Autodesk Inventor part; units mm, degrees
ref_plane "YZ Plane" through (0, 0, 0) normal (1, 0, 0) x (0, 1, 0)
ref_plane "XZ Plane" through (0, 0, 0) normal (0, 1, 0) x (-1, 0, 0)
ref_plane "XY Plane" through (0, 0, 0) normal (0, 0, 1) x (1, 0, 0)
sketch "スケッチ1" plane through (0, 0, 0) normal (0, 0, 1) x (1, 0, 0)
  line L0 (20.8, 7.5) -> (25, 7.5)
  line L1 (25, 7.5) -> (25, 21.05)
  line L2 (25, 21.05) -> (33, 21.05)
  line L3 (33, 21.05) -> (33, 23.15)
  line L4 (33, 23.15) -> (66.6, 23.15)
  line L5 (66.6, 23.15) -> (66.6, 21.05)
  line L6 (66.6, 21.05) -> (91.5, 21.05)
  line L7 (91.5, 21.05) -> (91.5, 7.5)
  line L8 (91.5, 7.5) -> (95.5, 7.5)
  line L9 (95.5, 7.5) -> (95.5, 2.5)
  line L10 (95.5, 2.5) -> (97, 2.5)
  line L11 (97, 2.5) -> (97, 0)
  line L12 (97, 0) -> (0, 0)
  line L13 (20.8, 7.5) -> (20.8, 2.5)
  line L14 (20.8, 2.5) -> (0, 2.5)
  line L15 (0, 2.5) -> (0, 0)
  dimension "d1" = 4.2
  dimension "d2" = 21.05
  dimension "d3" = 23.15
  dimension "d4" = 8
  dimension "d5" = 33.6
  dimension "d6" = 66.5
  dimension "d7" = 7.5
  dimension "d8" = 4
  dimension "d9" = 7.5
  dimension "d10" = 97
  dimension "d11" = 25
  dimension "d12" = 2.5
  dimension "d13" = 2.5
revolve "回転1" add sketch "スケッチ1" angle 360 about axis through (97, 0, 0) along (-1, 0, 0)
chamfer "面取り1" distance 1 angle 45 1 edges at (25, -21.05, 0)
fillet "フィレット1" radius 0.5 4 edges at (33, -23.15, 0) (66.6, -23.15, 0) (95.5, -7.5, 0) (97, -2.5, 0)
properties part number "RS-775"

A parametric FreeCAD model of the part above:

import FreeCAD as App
import Part
import Sketcher


def edges_at(feature, points):
    """Names of the edges that pass closest to the given points."""
    edges = feature.Shape.Edges
    near = lambda p: min(range(len(edges)), key=lambda i: edges[i].distToShape(Part.Vertex(*p))[0])
    return sorted({f"Edge{near(p) + 1}" for p in points})


def add_polygon(sketch, points):
    """Adds a closed chain of lines whose ends are joined by coincident constraints."""
    first, n = sketch.GeometryCount, len(points)
    for a, b in zip(points, points[1:] + points[:1]):
        sketch.addGeometry(Part.LineSegment(App.Vector(*a, 0), App.Vector(*b, 0)), False)
    for i in range(n):
        sketch.addConstraint(Sketcher.Constraint("Coincident", first + i, 2, first + (i + 1) % n, 1))

doc = App.newDocument("Part")
body = doc.addObject("PartDesign::Body", "Body")

sketch1 = body.newObject("Sketcher::SketchObject", "Sketch")
sketch1.AttachmentSupport = (doc.getObject("XY_Plane"), [""])
sketch1.MapMode = "FlatFace"
add_polygon(sketch1, [(25, 7.5), (20.8, 7.5), (20.8, 2.5), (0, 2.5), (0, 0), (97, 0), (97, 2.5), (95.5, 2.5), (95.5, 7.5), (91.5, 7.5), (91.5, 21.1), (66.6, 21.1), (66.6, 23.1), (33, 23.1), (33, 21.1), (25, 21.1)])
sketch1.addConstraint(Sketcher.Constraint("Horizontal", 0))
sketch1.addConstraint(Sketcher.Constraint("Vertical", 1))
sketch1.addConstraint(Sketcher.Constraint("Horizontal", 2))
sketch1.addConstraint(Sketcher.Constraint("Vertical", 3))
sketch1.addConstraint(Sketcher.Constraint("Horizontal", 4))
sketch1.addConstraint(Sketcher.Constraint("Vertical", 5))
sketch1.addConstraint(Sketcher.Constraint("Horizontal", 6))
sketch1.addConstraint(Sketcher.Constraint("Vertical", 7))
sketch1.addConstraint(Sketcher.Constraint("Horizontal", 8))
sketch1.addConstraint(Sketcher.Constraint("Vertical", 9))
sketch1.addConstraint(Sketcher.Constraint("Horizontal", 10))
sketch1.addConstraint(Sketcher.Constraint("Vertical", 11))
sketch1.addConstraint(Sketcher.Constraint("Horizontal", 12))
sketch1.addConstraint(Sketcher.Constraint("Vertical", 13))
sketch1.addConstraint(Sketcher.Constraint("Horizontal", 14))
sketch1.addConstraint(Sketcher.Constraint("Vertical", 15))
sketch1.addConstraint(Sketcher.Constraint("Coincident", 3, 2, -1, 1))
sketch1.addConstraint(Sketcher.Constraint("Horizontal", 2, 2, 5, 2))
sketch1.addConstraint(Sketcher.Constraint("Horizontal", 0, 2, 7, 2))
sketch1.addConstraint(Sketcher.Constraint("Horizontal", 10, 2, 13, 2))
sketch1.addConstraint(Sketcher.Constraint("DistanceX", 4, 1, 4, 2, 97.0))
sketch1.addConstraint(Sketcher.Constraint("DistanceX", 8, 2, 8, 1, 4.0))
sketch1.addConstraint(Sketcher.Constraint("DistanceX", 14, 2, 14, 1, 8.0))
sketch1.addConstraint(Sketcher.Constraint("DistanceX", 0, 2, 0, 1, 4.2))
sketch1.addConstraint(Sketcher.Constraint("DistanceX", 12, 2, 12, 1, 33.6))
sketch1.addConstraint(Sketcher.Constraint("DistanceY", 3, 2, 3, 1, 2.5))
sketch1.addConstraint(Sketcher.Constraint("DistanceX", -1, 1, 14, 2, 25.0))
sketch1.addConstraint(Sketcher.Constraint("DistanceY", -1, 1, 0, 2, 7.5))
sketch1.addConstraint(Sketcher.Constraint("DistanceY", -1, 1, 9, 2, 21.05))
sketch1.addConstraint(Sketcher.Constraint("DistanceY", -1, 1, 11, 2, 23.15))
sketch1.addConstraint(Sketcher.Constraint("DistanceX", 6, 2, 6, 1, 1.5))
revolution = body.newObject("PartDesign::Revolution", "Revolution")
revolution.Profile = sketch1
revolution.ReferenceAxis = (sketch1, ["H_Axis"])
revolution.Angle = 360
doc.recompute()

chamfer = body.newObject("PartDesign::Chamfer", "Chamfer")
chamfer.Base = (revolution, edges_at(revolution, [(25, -21.05, 0)]))
chamfer.Size = 1
doc.recompute()

fillet = body.newObject("PartDesign::Fillet", "Fillet")
fillet.Base = (chamfer, edges_at(chamfer, [
    (33, -23.15, 0),
    (66.6, -23.15, 0),
    (95.5, -7.5, 0),
    (97, -2.5, 0),
]))
fillet.Radius = 0.5

doc.recompute()
